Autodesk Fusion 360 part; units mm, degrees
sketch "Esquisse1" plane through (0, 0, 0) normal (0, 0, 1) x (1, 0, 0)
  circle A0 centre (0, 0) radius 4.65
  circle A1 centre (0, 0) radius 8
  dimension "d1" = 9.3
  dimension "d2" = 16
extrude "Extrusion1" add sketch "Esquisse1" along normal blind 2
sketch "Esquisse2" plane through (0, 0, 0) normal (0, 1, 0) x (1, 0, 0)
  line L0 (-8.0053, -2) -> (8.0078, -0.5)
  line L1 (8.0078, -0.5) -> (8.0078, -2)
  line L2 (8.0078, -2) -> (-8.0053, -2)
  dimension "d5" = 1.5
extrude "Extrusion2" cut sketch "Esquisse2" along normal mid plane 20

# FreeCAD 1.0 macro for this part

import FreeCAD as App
import Part
import Sketcher
from FreeCAD import Vector

doc = App.newDocument("Part")
body = doc.addObject("PartDesign::Body", "Body")

sketch1 = body.newObject("Sketcher::SketchObject", "Sketch")
sketch1.AttachmentSupport = (doc.getObject("XY_Plane"), [""])
sketch1.MapMode = "FlatFace"
sketch1.addGeometry([
    Part.Circle(Vector(0, 0, 0), Vector(0, 0, 1), 8),
    Part.Circle(Vector(0, 0, 0), Vector(0, 0, 1), 4.7),
], False)
sketch1.addConstraint([
    Sketcher.Constraint("Coincident", 0, 3, -1, 1),
    Sketcher.Constraint("Coincident", 1, 3, -1, 1),
    Sketcher.Constraint("Diameter", 0, 16.0),
    Sketcher.Constraint("Diameter", 1, 9.3),
])
pad1 = body.newObject("PartDesign::Pad", "Pad")
pad1.Profile = sketch1
pad1.Length = 2

sketch2 = body.newObject("Sketcher::SketchObject", "Sketch001")
sketch2.AttachmentSupport = (doc.getObject("XZ_Plane"), [""])
sketch2.MapMode = "FlatFace"
sketch2.addGeometry([
    Part.LineSegment(Vector(8, 0.5, 0), Vector(-8, 2, 0)),
    Part.LineSegment(Vector(-8, 2, 0), Vector(8, 2, 0)),
    Part.LineSegment(Vector(8, 2, 0), Vector(8, 0.5, 0)),
], False)
sketch2.addConstraint([
    Sketcher.Constraint("Coincident", 0, 2, 1, 1),
    Sketcher.Constraint("Coincident", 1, 2, 2, 1),
    Sketcher.Constraint("Coincident", 2, 2, 0, 1),
    Sketcher.Constraint("Horizontal", 1),
    Sketcher.Constraint("Vertical", 2),
    Sketcher.Constraint("DistanceY", 2, 2, 2, 1, 1.5),
    Sketcher.Constraint("DistanceY", -1, 1, 0, 2, 2.0),
    Sketcher.Constraint("DistanceX", 1, 1, 1, 2, 16.013),
    Sketcher.Constraint("DistanceX", 0, 2, -1, 1, 8.0053),
])
pocket1 = body.newObject("PartDesign::Pocket", "Pocket")
pocket1.Profile = sketch2
pocket1.Length = 20
pocket1.Midplane = True

doc.recompute()
